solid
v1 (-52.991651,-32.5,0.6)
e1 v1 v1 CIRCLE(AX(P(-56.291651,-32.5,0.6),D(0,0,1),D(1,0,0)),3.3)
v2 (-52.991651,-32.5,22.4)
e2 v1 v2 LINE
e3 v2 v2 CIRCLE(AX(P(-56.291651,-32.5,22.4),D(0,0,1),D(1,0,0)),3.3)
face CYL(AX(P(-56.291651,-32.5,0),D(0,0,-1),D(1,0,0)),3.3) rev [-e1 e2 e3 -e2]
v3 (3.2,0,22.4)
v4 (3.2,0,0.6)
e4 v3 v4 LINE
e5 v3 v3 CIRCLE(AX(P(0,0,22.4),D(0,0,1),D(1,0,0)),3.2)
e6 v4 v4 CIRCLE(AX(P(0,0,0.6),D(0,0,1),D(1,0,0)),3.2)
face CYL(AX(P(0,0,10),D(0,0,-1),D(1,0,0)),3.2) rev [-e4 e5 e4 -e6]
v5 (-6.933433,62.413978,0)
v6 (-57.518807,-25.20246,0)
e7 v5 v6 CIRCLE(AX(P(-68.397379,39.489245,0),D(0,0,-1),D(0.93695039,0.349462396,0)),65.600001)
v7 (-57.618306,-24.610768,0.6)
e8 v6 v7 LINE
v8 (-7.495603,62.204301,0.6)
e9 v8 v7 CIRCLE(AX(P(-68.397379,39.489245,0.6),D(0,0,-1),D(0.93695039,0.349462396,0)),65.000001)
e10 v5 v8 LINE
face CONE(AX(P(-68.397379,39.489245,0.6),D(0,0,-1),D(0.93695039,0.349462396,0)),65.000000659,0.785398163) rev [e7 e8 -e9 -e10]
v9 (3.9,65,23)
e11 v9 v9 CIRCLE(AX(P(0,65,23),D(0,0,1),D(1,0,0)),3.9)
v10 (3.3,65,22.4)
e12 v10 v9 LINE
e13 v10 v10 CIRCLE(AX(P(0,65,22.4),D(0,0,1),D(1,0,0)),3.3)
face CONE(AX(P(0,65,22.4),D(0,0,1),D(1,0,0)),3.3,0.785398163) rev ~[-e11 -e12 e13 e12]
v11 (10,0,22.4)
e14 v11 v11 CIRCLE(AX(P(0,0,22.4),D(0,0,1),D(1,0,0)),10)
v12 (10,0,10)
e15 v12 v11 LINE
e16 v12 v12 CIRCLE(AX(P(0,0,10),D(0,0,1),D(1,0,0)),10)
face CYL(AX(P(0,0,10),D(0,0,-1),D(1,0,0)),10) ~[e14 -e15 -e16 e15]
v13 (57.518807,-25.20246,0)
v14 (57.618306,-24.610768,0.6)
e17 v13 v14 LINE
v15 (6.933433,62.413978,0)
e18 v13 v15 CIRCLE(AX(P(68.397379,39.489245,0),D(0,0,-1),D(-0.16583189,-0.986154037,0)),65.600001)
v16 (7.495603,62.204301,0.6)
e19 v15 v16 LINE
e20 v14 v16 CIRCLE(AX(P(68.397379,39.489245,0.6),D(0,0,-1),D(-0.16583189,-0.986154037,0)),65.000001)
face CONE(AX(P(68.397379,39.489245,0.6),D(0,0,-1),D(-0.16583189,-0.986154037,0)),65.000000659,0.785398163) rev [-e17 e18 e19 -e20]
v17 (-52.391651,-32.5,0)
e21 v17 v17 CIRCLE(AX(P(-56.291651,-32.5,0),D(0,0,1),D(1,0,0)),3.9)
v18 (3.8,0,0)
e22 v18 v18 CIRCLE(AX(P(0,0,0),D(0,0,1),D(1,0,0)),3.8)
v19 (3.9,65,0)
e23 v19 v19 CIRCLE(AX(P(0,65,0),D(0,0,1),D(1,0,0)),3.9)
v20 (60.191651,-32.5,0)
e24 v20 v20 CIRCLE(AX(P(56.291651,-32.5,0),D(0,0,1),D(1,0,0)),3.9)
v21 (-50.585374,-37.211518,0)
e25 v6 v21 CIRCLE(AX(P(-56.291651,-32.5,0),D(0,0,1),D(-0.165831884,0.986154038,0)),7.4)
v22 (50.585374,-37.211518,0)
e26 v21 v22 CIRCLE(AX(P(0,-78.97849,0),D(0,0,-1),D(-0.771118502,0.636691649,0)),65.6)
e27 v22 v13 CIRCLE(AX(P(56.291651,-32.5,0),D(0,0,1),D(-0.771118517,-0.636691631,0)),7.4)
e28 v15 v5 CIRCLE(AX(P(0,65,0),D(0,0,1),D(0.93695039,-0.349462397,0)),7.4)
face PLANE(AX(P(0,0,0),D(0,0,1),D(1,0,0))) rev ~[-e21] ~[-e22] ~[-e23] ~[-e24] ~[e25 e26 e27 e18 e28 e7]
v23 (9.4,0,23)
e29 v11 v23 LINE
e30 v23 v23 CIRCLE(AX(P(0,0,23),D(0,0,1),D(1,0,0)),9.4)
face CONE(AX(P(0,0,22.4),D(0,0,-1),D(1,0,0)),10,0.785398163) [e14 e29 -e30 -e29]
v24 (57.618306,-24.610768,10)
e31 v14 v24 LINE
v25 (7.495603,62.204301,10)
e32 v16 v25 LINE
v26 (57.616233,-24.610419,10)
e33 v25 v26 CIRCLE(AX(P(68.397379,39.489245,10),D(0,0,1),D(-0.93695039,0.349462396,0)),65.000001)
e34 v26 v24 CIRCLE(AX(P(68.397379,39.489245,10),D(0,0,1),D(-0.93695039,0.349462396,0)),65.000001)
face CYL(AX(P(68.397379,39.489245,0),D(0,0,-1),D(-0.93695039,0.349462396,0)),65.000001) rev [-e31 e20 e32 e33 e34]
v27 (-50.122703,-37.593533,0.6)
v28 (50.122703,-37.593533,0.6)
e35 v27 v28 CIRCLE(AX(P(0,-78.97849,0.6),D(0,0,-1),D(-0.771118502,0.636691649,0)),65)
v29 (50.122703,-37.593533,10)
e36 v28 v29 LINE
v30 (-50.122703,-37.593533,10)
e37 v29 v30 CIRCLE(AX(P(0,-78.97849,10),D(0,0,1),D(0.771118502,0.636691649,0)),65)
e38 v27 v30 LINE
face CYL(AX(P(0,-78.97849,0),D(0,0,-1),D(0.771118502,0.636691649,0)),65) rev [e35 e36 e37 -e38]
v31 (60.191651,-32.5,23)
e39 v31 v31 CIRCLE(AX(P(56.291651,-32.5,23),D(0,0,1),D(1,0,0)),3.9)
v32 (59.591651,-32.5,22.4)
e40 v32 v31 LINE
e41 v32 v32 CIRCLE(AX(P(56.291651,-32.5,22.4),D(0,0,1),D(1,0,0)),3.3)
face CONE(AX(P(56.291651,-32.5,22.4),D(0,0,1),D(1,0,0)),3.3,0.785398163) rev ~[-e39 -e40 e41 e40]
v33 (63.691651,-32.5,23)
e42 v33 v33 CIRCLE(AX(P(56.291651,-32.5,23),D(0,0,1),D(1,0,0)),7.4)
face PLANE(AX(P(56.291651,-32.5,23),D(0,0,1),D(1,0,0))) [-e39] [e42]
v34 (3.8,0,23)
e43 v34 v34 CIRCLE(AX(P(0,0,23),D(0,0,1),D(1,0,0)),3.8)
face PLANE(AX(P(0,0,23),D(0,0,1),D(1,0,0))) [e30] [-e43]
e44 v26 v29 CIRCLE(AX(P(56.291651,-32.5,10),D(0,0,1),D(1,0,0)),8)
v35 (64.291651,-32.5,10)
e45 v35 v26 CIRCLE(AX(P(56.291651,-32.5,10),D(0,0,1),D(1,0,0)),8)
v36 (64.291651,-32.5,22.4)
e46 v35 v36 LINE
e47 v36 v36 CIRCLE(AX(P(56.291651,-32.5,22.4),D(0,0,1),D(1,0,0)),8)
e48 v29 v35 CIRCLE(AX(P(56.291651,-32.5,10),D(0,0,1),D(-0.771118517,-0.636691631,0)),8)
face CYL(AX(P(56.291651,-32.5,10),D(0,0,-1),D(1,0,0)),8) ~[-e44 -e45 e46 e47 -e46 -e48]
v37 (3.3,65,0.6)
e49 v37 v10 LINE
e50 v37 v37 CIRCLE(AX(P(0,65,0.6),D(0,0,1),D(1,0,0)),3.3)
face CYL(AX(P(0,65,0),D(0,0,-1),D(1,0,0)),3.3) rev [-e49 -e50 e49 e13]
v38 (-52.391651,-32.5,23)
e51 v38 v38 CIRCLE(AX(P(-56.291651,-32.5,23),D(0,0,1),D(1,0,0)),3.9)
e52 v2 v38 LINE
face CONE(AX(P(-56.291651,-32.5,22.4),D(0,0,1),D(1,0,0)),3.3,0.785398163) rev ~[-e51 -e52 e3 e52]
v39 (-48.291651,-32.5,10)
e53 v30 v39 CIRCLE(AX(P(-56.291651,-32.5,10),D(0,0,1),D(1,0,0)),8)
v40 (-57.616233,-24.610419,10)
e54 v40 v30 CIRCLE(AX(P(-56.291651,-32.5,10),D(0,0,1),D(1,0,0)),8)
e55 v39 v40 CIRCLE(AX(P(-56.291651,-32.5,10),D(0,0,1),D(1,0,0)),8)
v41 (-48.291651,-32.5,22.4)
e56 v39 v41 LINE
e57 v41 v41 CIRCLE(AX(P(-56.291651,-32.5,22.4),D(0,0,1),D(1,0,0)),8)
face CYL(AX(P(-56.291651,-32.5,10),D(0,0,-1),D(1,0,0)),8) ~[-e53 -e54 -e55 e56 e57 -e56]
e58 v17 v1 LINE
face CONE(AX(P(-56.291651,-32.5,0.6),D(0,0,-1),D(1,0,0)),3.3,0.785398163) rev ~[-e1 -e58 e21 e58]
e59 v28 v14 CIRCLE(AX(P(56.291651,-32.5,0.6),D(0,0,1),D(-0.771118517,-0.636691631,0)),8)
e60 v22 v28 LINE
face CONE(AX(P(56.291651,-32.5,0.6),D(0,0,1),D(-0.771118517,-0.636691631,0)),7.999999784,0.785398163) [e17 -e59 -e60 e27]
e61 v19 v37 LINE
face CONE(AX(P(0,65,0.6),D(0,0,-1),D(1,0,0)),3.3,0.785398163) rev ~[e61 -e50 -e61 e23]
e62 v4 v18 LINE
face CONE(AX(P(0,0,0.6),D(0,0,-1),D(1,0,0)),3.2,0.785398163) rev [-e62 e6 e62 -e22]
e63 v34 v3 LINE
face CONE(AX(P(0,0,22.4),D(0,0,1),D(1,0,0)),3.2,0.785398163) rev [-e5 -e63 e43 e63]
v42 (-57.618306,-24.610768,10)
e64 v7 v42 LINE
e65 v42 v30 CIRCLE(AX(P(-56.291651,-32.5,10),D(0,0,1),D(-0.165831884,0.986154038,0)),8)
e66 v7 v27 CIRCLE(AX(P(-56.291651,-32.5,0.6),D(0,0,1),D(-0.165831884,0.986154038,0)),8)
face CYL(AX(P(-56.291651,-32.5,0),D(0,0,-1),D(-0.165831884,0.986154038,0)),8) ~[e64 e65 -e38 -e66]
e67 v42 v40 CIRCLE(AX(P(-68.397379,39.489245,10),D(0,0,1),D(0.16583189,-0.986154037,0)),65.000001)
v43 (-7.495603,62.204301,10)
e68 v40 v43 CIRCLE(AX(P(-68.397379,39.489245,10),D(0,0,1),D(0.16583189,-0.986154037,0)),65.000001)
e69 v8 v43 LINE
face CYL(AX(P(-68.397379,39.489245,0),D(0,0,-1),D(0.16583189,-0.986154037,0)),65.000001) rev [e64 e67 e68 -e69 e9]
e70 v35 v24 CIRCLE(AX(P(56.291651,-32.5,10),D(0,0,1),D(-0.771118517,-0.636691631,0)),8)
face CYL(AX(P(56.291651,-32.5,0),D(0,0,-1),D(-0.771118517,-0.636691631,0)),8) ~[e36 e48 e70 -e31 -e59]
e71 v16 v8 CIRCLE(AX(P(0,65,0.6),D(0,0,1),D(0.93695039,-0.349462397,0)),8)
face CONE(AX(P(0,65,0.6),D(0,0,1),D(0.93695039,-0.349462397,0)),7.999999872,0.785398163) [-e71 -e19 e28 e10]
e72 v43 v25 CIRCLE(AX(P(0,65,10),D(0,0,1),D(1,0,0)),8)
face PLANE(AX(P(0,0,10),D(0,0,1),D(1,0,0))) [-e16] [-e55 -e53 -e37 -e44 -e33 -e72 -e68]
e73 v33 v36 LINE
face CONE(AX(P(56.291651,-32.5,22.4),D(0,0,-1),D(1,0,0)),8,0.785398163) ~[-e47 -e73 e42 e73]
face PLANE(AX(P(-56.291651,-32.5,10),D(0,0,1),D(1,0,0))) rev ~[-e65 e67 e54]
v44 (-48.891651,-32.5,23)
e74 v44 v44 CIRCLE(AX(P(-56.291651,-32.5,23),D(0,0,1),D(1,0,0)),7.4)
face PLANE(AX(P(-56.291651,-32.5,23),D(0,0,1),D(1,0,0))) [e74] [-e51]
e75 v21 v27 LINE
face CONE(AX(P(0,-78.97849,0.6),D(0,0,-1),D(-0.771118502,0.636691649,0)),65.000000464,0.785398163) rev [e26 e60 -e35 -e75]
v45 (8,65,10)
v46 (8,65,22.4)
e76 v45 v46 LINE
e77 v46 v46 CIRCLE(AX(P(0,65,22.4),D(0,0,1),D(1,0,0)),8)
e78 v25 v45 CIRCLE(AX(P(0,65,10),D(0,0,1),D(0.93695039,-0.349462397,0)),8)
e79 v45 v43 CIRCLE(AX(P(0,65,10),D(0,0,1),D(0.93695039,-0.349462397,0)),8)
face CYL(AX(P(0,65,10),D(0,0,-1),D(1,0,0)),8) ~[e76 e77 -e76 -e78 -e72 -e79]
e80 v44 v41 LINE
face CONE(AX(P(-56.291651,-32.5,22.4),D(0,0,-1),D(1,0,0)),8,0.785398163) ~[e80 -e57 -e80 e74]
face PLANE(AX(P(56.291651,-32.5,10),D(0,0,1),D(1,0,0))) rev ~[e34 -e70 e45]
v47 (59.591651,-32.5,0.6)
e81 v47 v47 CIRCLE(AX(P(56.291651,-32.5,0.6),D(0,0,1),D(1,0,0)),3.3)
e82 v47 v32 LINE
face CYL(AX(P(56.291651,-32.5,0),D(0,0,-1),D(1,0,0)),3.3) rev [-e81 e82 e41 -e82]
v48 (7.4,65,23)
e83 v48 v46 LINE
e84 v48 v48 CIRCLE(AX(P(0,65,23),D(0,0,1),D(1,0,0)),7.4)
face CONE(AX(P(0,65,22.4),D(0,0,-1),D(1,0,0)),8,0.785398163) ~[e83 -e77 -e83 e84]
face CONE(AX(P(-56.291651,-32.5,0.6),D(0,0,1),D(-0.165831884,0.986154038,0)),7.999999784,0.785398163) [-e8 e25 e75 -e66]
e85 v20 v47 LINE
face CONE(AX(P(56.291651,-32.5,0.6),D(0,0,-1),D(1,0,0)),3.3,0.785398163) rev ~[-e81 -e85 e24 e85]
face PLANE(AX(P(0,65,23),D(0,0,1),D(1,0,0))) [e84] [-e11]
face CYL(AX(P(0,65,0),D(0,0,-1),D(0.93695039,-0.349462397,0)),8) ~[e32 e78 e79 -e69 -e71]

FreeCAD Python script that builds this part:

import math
import FreeCAD as App
import Part
import Sketcher


def edges_at(feature, points):
    """Names of the edges that pass closest to the given points."""
    edges = feature.Shape.Edges
    near = lambda p: min(range(len(edges)), key=lambda i: edges[i].distToShape(Part.Vertex(*p))[0])
    return sorted({f"Edge{near(p) + 1}" for p in points})

doc = App.newDocument("Part")
body = doc.addObject("PartDesign::Body", "Body")

sketch1 = body.newObject("Sketcher::SketchObject", "Sketch")
sketch1.AttachmentSupport = (doc.getObject("XY_Plane"), [""])
sketch1.MapMode = "FlatFace"
sketch1.addGeometry(Part.ArcOfCircle(Part.Circle(App.Vector(0, 65, 0), App.Vector(0, 0, 1), 8), math.radians(-20), math.radians(200)), False)
sketch1.addGeometry(Part.ArcOfCircle(Part.Circle(App.Vector(-68.4, 39.5, 0), App.Vector(0, 0, 1), 65), math.radians(-80), math.radians(20)), False)
sketch1.addGeometry(Part.ArcOfCircle(Part.Circle(App.Vector(-56.3, -32.5, 0), App.Vector(0, 0, 1), 8), math.radians(100), math.radians(320)), False)
sketch1.addGeometry(Part.ArcOfCircle(Part.Circle(App.Vector(0, -79, 0), App.Vector(0, 0, 1), 65), math.radians(40), math.radians(140)), False)
sketch1.addGeometry(Part.ArcOfCircle(Part.Circle(App.Vector(56.3, -32.5, 0), App.Vector(0, 0, 1), 8), math.radians(-140), math.radians(80)), False)
sketch1.addGeometry(Part.ArcOfCircle(Part.Circle(App.Vector(68.4, 39.5, 0), App.Vector(0, 0, 1), 65), math.radians(160), math.radians(260)), False)
sketch1.addGeometry(Part.Circle(App.Vector(-56.3, -32.5, 0), App.Vector(0, 0, 1), 3.3), False)
sketch1.addGeometry(Part.Circle(App.Vector(56.3, -32.5, 0), App.Vector(0, 0, 1), 3.3), False)
sketch1.addGeometry(Part.Circle(App.Vector(0, 0, 0), App.Vector(0, 0, 1), 3.2), False)
sketch1.addGeometry(Part.Circle(App.Vector(0, 65, 0), App.Vector(0, 0, 1), 3.3), False)
sketch1.addConstraint(Sketcher.Constraint("Tangent", 0, 2, 1, 2))
sketch1.addConstraint(Sketcher.Constraint("Tangent", 1, 1, 2, 1))
sketch1.addConstraint(Sketcher.Constraint("Tangent", 2, 2, 3, 2))
sketch1.addConstraint(Sketcher.Constraint("Tangent", 3, 1, 4, 1))
sketch1.addConstraint(Sketcher.Constraint("Tangent", 4, 2, 5, 2))
sketch1.addConstraint(Sketcher.Constraint("Tangent", 5, 1, 0, 1))
sketch1.addConstraint(Sketcher.Constraint("Coincident", 8, 3, -1, 1))
sketch1.addConstraint(Sketcher.Constraint("Coincident", 6, 3, 2, 3))
sketch1.addConstraint(Sketcher.Constraint("Coincident", 7, 3, 4, 3))
sketch1.addConstraint(Sketcher.Constraint("Coincident", 9, 3, 0, 3))
sketch1.addConstraint(Sketcher.Constraint("Equal", 0, 2))
sketch1.addConstraint(Sketcher.Constraint("Equal", 1, 3))
sketch1.addConstraint(Sketcher.Constraint("Equal", 2, 4))
sketch1.addConstraint(Sketcher.Constraint("Equal", 3, 5))
sketch1.addConstraint(Sketcher.Constraint("Equal", 6, 7))
sketch1.addConstraint(Sketcher.Constraint("Equal", 7, 9))
sketch1.addConstraint(Sketcher.Constraint("Symmetric", 2, 3, 4, 3, -2))
sketch1.addConstraint(Sketcher.Constraint("PointOnObject", 0, 3, -2))
sketch1.addConstraint(Sketcher.Constraint("Radius", 0, 8.0))
sketch1.addConstraint(Sketcher.Constraint("Radius", 1, 65.000001))
sketch1.addConstraint(Sketcher.Constraint("Diameter", 6, 6.6))
sketch1.addConstraint(Sketcher.Constraint("Diameter", 8, 6.4))
sketch1.addConstraint(Sketcher.Constraint("DistanceY", -1, 1, 0, 3, 65.0))
sketch1.addConstraint(Sketcher.Constraint("DistanceY", 2, 3, -1, 1, 32.5))
sketch1.addConstraint(Sketcher.Constraint("DistanceX", 2, 3, 4, 3, 112.583302))
pad1 = body.newObject("PartDesign::Pad", "Pad")
pad1.Profile = sketch1
pad1.Length = 10

sketch2 = body.newObject("Sketcher::SketchObject", "Sketch001")
sketch2.AttachmentSupport = (doc.getObject("XY_Plane"), [""])
sketch2.MapMode = "FlatFace"
sketch2.AttachmentOffset = App.Placement(App.Vector(0, 0, 10), App.Rotation())
sketch2.addGeometry(Part.Circle(App.Vector(0, 0, 0), App.Vector(0, 0, 1), 10), False)
sketch2.addGeometry(Part.Circle(App.Vector(0, 0, 0), App.Vector(0, 0, 1), 3.2), False)
sketch2.addGeometry(Part.Circle(App.Vector(-56.3, -32.5, 0), App.Vector(0, 0, 1), 8), False)
sketch2.addGeometry(Part.Circle(App.Vector(-56.3, -32.5, 0), App.Vector(0, 0, 1), 3.3), False)
sketch2.addGeometry(Part.Circle(App.Vector(56.3, -32.5, 0), App.Vector(0, 0, 1), 8), False)
sketch2.addGeometry(Part.Circle(App.Vector(56.3, -32.5, 0), App.Vector(0, 0, 1), 3.3), False)
sketch2.addGeometry(Part.Circle(App.Vector(0, 65, 0), App.Vector(0, 0, 1), 8), False)
sketch2.addGeometry(Part.Circle(App.Vector(0, 65, 0), App.Vector(0, 0, 1), 3.3), False)
sketch2.addConstraint(Sketcher.Constraint("Coincident", 0, 3, -1, 1))
sketch2.addConstraint(Sketcher.Constraint("Coincident", 1, 3, -1, 1))
sketch2.addConstraint(Sketcher.Constraint("Coincident", 3, 3, 2, 3))
sketch2.addConstraint(Sketcher.Constraint("Coincident", 5, 3, 4, 3))
sketch2.addConstraint(Sketcher.Constraint("Coincident", 7, 3, 6, 3))
sketch2.addConstraint(Sketcher.Constraint("Equal", 2, 4))
sketch2.addConstraint(Sketcher.Constraint("Equal", 3, 5))
sketch2.addConstraint(Sketcher.Constraint("Equal", 4, 6))
sketch2.addConstraint(Sketcher.Constraint("Equal", 5, 7))
sketch2.addConstraint(Sketcher.Constraint("Symmetric", 2, 3, 4, 3, -2))
sketch2.addConstraint(Sketcher.Constraint("PointOnObject", 6, 3, -2))
sketch2.addConstraint(Sketcher.Constraint("Diameter", 0, 20.0))
sketch2.addConstraint(Sketcher.Constraint("Diameter", 2, 16.0))
sketch2.addConstraint(Sketcher.Constraint("Diameter", 1, 6.4))
sketch2.addConstraint(Sketcher.Constraint("Diameter", 3, 6.6))
sketch2.addConstraint(Sketcher.Constraint("DistanceY", -1, 1, 6, 3, 65.0))
sketch2.addConstraint(Sketcher.Constraint("DistanceY", 2, 3, -1, 1, 32.5))
sketch2.addConstraint(Sketcher.Constraint("DistanceX", 2, 3, -1, 1, 56.291651))
pad2 = body.newObject("PartDesign::Pad", "Pad001")
pad2.Profile = sketch2
pad2.Length = 13
doc.recompute()

chamfer = body.newObject("PartDesign::Chamfer", "Chamfer")
chamfer.Base = (pad2, edges_at(pad2, [
    (-64.292, -32.5, 23),
    (-59.592, -32.5, 23),
    (-10, 0, 23),
    (-3.2, 0, 23),
    (-8, 65, 23),
    (-3.3, 65, 23),
    (48.292, -32.5, 23),
    (52.992, -32.5, 23),
    (0, 73, 0),
    (0, 73, 0),
    (-12.106, 6.989, 0),
    (-63.22, -36.5, 0),
    (0, -13.978, 0),
    (63.22, -36.5, 0),
    (63.22, -36.5, 0),
    (12.106, 6.989, 0),
    (-3.3, 65, 0),
    (-59.592, -32.5, 0),
    (52.992, -32.5, 0),
    (-3.2, 0, 0),
]))
chamfer.Size = 0.6

doc.recompute()
